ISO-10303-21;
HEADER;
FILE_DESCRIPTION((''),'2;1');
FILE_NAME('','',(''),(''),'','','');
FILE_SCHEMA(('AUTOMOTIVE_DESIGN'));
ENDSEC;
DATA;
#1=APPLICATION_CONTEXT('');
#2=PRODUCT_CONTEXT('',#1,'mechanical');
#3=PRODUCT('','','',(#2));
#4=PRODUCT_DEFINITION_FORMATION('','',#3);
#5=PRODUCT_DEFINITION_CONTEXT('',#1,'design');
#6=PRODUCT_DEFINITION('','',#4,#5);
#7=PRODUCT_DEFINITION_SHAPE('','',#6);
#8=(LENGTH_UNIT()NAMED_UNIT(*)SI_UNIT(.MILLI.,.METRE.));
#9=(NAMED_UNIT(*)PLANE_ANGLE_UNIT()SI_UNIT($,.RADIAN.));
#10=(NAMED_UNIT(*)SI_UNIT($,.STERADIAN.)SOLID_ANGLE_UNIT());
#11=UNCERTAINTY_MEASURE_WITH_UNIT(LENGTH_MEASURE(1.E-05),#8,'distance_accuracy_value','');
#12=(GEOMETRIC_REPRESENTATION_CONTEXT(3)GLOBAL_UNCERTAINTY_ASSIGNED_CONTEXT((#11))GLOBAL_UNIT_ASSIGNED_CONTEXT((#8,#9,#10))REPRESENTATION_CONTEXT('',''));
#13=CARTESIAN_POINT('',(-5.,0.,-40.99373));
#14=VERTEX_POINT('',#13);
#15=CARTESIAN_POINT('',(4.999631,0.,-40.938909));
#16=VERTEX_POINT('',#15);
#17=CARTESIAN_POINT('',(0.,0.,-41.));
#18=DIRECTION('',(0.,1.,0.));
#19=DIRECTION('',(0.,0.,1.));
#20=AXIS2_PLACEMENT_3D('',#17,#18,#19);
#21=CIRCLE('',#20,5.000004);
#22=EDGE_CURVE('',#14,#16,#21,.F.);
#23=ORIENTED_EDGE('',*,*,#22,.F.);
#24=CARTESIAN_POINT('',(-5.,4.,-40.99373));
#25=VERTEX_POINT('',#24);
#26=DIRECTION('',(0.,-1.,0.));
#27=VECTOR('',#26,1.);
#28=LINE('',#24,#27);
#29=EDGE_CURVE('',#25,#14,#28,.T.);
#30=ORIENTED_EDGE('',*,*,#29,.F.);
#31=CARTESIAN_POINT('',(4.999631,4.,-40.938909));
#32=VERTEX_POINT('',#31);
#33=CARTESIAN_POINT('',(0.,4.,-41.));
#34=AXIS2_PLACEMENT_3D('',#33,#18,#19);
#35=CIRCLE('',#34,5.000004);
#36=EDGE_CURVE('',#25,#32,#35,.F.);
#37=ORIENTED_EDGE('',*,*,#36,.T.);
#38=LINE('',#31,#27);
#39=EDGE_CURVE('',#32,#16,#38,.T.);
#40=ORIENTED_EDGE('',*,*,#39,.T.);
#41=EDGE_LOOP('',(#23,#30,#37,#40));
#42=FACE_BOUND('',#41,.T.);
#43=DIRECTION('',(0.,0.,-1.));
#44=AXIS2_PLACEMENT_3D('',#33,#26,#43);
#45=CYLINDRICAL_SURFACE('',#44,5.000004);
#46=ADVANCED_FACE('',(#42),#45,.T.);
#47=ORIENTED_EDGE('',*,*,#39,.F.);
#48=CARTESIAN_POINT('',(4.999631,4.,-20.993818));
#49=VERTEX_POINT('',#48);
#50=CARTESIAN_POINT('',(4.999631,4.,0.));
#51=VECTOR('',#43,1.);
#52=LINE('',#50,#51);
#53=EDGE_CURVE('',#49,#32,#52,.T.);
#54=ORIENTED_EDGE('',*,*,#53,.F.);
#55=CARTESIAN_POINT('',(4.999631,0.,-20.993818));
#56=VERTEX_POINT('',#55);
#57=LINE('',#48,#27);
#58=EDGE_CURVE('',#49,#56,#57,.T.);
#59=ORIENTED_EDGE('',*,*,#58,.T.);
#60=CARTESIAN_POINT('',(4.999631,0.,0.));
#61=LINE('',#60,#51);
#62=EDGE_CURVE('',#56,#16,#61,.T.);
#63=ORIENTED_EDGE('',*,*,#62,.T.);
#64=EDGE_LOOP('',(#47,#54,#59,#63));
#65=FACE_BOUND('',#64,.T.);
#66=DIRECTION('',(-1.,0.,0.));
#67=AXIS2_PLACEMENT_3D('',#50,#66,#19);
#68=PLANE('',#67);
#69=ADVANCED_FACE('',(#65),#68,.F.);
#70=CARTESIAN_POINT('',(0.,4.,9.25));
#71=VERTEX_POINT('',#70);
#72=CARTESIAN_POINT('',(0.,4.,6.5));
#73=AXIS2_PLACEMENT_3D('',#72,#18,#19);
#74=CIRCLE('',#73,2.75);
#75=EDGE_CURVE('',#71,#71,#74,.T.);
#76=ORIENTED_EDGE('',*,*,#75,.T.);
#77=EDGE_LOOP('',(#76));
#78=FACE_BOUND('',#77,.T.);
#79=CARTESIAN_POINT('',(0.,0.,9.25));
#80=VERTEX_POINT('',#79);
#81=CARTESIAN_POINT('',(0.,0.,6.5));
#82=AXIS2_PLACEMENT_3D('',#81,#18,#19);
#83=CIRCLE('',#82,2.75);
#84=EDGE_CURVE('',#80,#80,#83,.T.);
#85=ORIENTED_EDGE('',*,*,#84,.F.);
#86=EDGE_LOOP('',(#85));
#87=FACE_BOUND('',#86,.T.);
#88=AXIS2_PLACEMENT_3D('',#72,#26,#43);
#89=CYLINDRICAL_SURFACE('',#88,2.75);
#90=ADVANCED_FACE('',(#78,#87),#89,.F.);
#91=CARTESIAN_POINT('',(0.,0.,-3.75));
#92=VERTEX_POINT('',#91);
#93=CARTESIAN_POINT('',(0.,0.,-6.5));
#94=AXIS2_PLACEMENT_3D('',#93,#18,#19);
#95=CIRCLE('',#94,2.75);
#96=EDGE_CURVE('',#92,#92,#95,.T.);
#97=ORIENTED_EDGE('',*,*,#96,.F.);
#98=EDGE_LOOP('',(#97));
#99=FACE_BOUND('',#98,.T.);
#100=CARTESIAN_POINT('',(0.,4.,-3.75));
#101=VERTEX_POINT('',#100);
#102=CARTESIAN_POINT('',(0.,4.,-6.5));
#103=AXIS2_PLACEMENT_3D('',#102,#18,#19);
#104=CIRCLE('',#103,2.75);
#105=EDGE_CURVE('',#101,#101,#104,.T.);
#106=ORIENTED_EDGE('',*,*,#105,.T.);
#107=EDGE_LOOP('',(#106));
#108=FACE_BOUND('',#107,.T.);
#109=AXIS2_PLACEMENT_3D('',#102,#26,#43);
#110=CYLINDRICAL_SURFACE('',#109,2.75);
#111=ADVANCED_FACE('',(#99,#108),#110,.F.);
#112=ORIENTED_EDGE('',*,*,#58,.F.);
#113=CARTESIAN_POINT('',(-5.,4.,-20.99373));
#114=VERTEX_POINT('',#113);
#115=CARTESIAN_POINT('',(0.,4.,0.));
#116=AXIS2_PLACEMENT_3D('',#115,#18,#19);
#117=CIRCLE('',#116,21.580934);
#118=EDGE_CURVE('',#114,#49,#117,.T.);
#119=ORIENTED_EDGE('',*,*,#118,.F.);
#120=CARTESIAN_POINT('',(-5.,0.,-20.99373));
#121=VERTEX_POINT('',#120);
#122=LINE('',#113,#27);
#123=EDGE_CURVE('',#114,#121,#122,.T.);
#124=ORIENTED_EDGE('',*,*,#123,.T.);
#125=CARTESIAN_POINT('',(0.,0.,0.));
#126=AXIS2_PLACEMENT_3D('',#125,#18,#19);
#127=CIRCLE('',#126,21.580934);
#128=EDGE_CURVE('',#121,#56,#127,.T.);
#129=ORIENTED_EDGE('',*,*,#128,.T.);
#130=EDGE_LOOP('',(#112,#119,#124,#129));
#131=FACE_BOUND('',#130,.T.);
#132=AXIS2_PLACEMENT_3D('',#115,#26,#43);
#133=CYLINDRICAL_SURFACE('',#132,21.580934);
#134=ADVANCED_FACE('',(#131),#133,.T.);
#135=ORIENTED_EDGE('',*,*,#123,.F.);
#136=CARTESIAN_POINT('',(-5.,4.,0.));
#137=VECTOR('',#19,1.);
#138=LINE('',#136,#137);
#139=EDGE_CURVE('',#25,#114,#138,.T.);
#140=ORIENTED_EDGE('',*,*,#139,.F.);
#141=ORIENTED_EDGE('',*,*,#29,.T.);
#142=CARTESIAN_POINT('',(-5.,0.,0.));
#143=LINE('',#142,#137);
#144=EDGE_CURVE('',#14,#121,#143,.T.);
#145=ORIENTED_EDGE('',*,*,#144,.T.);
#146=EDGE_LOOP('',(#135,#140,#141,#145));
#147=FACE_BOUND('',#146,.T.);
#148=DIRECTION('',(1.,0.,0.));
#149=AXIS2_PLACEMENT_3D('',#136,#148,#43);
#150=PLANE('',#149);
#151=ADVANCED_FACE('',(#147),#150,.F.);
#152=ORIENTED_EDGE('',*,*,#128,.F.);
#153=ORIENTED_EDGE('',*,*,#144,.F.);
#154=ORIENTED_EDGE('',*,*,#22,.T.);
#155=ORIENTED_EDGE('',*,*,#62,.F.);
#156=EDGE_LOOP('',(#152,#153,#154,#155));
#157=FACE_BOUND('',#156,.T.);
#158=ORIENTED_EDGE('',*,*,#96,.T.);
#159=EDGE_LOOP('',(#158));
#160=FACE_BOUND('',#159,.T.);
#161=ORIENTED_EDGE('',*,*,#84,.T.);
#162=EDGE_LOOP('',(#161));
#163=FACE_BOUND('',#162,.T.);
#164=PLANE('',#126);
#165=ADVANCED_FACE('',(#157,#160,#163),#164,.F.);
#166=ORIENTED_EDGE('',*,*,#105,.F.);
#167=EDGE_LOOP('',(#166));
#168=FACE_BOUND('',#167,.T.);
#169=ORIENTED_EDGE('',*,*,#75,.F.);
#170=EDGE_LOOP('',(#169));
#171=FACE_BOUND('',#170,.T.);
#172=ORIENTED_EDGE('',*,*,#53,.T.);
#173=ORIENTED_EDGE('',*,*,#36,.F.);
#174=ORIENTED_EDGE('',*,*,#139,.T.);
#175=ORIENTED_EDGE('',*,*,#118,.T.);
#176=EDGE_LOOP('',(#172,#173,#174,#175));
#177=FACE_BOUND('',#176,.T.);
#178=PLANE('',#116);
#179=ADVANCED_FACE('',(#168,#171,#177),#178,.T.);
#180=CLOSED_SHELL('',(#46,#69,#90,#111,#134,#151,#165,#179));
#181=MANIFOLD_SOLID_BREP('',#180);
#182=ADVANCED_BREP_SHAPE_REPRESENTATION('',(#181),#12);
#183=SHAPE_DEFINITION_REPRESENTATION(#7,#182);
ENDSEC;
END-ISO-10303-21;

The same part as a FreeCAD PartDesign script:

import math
import FreeCAD as App
import Part
import Sketcher

doc = App.newDocument("Part")
body = doc.addObject("PartDesign::Body", "Body")

# Sketch on XZ plane
sketch1 = body.newObject("Sketcher::SketchObject", "Sketch")
sketch1.AttachmentSupport = (doc.getObject("XZ_Plane"), [""])
sketch1.MapMode = "FlatFace"
sketch1.addGeometry([
    Part.LineSegment(App.Vector(-5, -40.99373, 0), App.Vector(-5, -20.99373, 0)),  # 0
    Part.ArcOfCircle(Part.Circle(App.Vector(0, 0, 0), App.Vector(0, 0, 1), 21.580934), math.radians(-76.604654), math.radians(256.603647)),  # 1
    Part.LineSegment(App.Vector(4.999631, -20.993818, 0), App.Vector(4.999631, -40.938909, 0)),  # 2
    Part.ArcOfCircle(Part.Circle(App.Vector(0, -41, 0), App.Vector(0, 0, 1), 5.000004), math.radians(179.928151), math.radians(360.700072)),  # 3
    Part.Circle(App.Vector(0, 6.5, 0), App.Vector(0, 0, 1), 2.75),  # 4
    Part.Circle(App.Vector(0, -6.5, 0), App.Vector(0, 0, 1), 2.75),  # 5
], False)
sketch1.addConstraint([
    Sketcher.Constraint("Coincident", 0, 2, 1, 2),
    Sketcher.Constraint("Coincident", 1, 1, 2, 1),
    Sketcher.Constraint("Coincident", 2, 2, 3, 2),
    Sketcher.Constraint("Coincident", 3, 1, 0, 1),
    Sketcher.Constraint("Vertical", 0),
    Sketcher.Constraint("Vertical", 2),
    Sketcher.Constraint("Coincident", 1, 3, -1, 1),
    Sketcher.Constraint("Equal", 4, 5),
    Sketcher.Constraint("Symmetric", 4, 3, 5, 3, -1, 1),
    Sketcher.Constraint("PointOnObject", 3, 3, -2),
    Sketcher.Constraint("PointOnObject", 4, 3, -2),
    Sketcher.Constraint("Diameter", 4, 5.5),
    Sketcher.Constraint("DistanceY", 0, 1, 0, 2, 20.0),
    Sketcher.Constraint("DistanceY", 3, 3, -1, 1, 41.0),
    Sketcher.Constraint("DistanceX", 0, 2, -1, 1, 5.0),
    Sketcher.Constraint("DistanceY", 5, 3, 4, 3, 13.0),
    Sketcher.Constraint("Radius", 1, 21.580934),
    Sketcher.Constraint("DistanceY", 2, 2, 2, 1, 19.945091),
])
pad1 = body.newObject("PartDesign::Pad", "Pad")
pad1.Profile = sketch1
pad1.Length = 4
pad1.Reversed = True

doc.recompute()
